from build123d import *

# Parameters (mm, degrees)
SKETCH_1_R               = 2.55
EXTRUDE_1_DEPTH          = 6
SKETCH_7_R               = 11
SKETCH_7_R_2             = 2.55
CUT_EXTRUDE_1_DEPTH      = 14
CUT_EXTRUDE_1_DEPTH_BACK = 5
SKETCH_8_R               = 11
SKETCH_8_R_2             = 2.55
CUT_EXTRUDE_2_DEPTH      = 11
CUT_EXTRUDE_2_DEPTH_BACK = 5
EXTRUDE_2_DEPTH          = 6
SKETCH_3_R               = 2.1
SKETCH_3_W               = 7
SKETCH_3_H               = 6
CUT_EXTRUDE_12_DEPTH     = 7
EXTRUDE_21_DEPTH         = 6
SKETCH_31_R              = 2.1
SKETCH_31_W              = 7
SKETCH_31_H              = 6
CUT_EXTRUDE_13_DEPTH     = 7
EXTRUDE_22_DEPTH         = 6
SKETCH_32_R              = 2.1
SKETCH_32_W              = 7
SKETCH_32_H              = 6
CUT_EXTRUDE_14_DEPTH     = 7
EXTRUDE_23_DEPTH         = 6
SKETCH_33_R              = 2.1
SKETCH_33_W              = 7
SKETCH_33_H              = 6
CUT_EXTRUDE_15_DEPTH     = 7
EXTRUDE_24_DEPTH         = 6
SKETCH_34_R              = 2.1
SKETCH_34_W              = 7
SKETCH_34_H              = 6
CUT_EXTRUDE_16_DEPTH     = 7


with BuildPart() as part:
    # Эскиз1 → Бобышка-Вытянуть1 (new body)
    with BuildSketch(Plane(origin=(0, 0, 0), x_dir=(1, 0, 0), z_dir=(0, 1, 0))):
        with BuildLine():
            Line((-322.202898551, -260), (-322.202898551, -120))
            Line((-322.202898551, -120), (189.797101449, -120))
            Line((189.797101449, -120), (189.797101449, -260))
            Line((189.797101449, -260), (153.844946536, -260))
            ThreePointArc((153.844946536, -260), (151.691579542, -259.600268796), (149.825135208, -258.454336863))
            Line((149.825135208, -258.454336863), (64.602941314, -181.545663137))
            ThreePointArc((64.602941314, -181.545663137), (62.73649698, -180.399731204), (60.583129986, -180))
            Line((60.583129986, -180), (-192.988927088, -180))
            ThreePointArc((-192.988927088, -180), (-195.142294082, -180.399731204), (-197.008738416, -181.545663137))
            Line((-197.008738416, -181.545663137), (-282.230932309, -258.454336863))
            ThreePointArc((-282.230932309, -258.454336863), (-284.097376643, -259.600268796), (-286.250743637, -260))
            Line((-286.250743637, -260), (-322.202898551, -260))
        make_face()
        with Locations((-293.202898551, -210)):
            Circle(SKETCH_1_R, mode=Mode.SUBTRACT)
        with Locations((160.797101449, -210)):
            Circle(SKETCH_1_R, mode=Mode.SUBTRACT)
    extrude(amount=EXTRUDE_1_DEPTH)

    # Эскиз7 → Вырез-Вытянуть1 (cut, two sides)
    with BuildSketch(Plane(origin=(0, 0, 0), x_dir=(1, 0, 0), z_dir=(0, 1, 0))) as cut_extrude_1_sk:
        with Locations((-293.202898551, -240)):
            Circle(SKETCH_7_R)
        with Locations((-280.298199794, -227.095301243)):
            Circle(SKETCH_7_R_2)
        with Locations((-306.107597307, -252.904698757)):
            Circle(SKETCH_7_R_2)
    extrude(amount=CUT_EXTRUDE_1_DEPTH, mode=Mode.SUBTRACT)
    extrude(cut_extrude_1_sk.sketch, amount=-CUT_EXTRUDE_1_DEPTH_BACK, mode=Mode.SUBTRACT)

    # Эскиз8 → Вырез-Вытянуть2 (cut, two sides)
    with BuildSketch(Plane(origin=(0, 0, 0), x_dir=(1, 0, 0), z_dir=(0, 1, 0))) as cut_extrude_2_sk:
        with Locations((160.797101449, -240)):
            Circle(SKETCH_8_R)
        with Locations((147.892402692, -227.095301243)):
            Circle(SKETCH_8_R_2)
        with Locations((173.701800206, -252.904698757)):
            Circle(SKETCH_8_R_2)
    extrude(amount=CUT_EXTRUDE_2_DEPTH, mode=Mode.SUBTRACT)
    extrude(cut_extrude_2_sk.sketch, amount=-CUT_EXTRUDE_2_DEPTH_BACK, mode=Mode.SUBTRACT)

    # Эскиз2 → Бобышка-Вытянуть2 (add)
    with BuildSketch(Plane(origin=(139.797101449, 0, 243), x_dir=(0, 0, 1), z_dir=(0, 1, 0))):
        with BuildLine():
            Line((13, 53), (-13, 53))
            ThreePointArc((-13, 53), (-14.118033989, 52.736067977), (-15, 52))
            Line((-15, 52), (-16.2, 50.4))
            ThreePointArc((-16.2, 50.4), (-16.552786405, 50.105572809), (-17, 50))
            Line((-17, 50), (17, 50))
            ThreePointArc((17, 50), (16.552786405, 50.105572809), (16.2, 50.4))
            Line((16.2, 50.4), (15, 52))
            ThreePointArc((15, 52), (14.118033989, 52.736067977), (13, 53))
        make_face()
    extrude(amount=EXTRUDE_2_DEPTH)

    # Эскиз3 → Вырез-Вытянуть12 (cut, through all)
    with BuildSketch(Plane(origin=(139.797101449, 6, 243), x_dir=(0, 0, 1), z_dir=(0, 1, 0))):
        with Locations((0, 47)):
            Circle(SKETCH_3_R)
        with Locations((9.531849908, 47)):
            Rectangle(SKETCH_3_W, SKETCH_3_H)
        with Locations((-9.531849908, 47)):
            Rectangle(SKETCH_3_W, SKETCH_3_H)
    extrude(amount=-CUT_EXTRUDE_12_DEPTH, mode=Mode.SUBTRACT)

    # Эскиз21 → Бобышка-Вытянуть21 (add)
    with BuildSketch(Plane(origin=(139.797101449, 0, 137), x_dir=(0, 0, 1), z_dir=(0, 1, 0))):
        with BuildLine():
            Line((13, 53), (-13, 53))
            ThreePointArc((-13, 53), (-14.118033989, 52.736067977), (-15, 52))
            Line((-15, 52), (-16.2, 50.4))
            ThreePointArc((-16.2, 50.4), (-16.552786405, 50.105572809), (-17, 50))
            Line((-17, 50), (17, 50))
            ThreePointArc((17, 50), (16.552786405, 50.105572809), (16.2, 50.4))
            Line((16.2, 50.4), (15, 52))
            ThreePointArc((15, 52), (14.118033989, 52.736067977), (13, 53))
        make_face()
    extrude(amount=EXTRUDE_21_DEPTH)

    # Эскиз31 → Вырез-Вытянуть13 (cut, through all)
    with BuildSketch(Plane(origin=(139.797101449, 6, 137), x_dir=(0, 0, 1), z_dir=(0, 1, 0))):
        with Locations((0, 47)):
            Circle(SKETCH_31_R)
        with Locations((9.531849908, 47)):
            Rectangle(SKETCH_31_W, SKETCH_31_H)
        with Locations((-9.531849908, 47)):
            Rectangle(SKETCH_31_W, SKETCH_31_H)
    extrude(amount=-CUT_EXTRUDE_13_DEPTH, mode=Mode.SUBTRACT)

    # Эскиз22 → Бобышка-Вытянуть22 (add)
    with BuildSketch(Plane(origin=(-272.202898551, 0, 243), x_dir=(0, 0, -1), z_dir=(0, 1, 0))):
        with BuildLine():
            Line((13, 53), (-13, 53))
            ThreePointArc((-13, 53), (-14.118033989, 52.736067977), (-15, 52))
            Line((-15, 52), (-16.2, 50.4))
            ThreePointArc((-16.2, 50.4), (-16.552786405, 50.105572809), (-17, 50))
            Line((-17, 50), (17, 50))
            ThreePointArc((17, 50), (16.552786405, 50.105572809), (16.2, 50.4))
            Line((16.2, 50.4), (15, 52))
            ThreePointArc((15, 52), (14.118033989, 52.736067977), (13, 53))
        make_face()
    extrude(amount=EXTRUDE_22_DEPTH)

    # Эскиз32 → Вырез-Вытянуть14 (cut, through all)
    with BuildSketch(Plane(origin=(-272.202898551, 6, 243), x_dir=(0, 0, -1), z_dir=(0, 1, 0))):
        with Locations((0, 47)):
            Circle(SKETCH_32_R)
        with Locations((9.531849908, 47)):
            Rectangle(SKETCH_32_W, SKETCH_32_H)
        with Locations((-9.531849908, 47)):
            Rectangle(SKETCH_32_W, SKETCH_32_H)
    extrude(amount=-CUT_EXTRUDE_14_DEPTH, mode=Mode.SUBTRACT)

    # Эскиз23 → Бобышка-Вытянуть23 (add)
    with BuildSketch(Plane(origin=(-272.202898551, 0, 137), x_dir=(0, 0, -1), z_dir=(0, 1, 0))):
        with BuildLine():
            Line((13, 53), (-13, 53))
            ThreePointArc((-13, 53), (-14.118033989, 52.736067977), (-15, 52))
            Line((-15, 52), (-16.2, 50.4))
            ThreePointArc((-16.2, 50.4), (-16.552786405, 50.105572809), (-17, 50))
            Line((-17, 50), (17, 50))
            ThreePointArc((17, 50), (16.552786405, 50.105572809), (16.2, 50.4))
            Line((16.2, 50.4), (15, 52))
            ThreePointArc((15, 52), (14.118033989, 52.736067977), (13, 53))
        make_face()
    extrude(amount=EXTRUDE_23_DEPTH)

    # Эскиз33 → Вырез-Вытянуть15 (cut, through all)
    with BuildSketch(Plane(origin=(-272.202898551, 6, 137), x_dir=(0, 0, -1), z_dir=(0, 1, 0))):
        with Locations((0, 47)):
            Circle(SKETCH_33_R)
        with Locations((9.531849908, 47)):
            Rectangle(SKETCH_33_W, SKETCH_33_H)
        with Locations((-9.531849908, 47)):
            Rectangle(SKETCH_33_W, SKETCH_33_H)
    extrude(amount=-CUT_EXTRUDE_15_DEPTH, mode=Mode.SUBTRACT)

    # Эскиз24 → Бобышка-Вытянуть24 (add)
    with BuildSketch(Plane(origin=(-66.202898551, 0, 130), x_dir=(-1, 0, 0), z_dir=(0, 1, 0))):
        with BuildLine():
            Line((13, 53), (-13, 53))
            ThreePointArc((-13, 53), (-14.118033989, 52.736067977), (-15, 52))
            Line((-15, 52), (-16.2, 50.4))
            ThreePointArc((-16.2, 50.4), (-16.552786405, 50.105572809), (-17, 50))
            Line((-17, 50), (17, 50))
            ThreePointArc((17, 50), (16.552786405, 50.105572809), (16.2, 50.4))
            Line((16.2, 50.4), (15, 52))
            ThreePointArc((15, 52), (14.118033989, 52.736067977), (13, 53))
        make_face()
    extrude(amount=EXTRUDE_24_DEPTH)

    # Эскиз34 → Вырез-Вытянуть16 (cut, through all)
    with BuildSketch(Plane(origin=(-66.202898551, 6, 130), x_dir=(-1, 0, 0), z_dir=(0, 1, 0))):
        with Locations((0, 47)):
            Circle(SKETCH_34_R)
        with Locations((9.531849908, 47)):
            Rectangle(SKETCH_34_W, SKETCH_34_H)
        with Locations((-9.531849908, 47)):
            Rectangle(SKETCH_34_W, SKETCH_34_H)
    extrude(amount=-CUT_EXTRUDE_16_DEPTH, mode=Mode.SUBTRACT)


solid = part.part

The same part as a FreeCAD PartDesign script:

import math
import FreeCAD as App
import Part
import Sketcher
Q = App.Units.Quantity

doc = App.newDocument("Part")
body = doc.addObject("PartDesign::Body", "Body")

sketch1 = doc.addObject("Sketcher::SketchObject", "Sketch")
body.addObject(sketch1)
sketch1.AttachmentSupport = (doc.XZ_Plane, [""])
sketch1.MapMode = "FlatFace"
sketch1.addGeometry(Part.LineSegment(App.Vector(-322.202899, 120, 0), App.Vector(-322.202899, 260, 0)), False)
sketch1.addGeometry(Part.LineSegment(App.Vector(-322.202899, 260, 0), App.Vector(-286.250744, 260, 0)), False)
sketch1.addGeometry(Part.ArcOfCircle(Part.Circle(App.Vector(-286.250744, 254, 0), App.Vector(0, 0, 1), 6), math.radians(47.935362), math.radians(90)), False)
sketch1.addGeometry(Part.LineSegment(App.Vector(-282.230932, 258.454337, 0), App.Vector(-197.008738, 181.545663, 0)), False)
sketch1.addGeometry(Part.ArcOfCircle(Part.Circle(App.Vector(-192.988927, 186, 0), App.Vector(0, 0, 1), 6), math.radians(-132.064638), math.radians(-90)), False)
sketch1.addGeometry(Part.LineSegment(App.Vector(-192.988927, 180, 0), App.Vector(60.58313, 180, 0)), False)
sketch1.addGeometry(Part.ArcOfCircle(Part.Circle(App.Vector(60.58313, 186, 0), App.Vector(0, 0, 1), 6), math.radians(-90), math.radians(-47.935362)), False)
sketch1.addGeometry(Part.LineSegment(App.Vector(64.602941, 181.545663, 0), App.Vector(149.825135, 258.454337, 0)), False)
sketch1.addGeometry(Part.ArcOfCircle(Part.Circle(App.Vector(153.844947, 254, 0), App.Vector(0, 0, 1), 6), math.radians(90), math.radians(132.064638)), False)
sketch1.addGeometry(Part.LineSegment(App.Vector(153.844947, 260, 0), App.Vector(189.797101, 260, 0)), False)
sketch1.addGeometry(Part.LineSegment(App.Vector(189.797101, 260, 0), App.Vector(189.797101, 120, 0)), False)
sketch1.addGeometry(Part.LineSegment(App.Vector(189.797101, 120, 0), App.Vector(-322.202899, 120, 0)), False)
sketch1.addGeometry(Part.Circle(App.Vector(160.797101, 210, 0), App.Vector(0, 0, 1), 2.55), False)
sketch1.addGeometry(Part.Circle(App.Vector(-293.202899, 210, 0), App.Vector(0, 0, 1), 2.55), False)
sketch1.addConstraint(Sketcher.Constraint("Coincident", 0, 2, 1, 1))
sketch1.addConstraint(Sketcher.Constraint("Tangent", 1, 2, 2, 2))
sketch1.addConstraint(Sketcher.Constraint("Tangent", 2, 1, 3, 1))
sketch1.addConstraint(Sketcher.Constraint("Tangent", 3, 2, 4, 1))
sketch1.addConstraint(Sketcher.Constraint("Tangent", 4, 2, 5, 1))
sketch1.addConstraint(Sketcher.Constraint("Tangent", 5, 2, 6, 1))
sketch1.addConstraint(Sketcher.Constraint("Tangent", 6, 2, 7, 1))
sketch1.addConstraint(Sketcher.Constraint("Tangent", 7, 2, 8, 2))
sketch1.addConstraint(Sketcher.Constraint("Tangent", 8, 1, 9, 1))
sketch1.addConstraint(Sketcher.Constraint("Coincident", 9, 2, 10, 1))
sketch1.addConstraint(Sketcher.Constraint("Coincident", 10, 2, 11, 1))
sketch1.addConstraint(Sketcher.Constraint("Coincident", 11, 2, 0, 1))
sketch1.addConstraint(Sketcher.Constraint("Vertical", 0))
sketch1.addConstraint(Sketcher.Constraint("Horizontal", 1))
sketch1.addConstraint(Sketcher.Constraint("Horizontal", 5))
sketch1.addConstraint(Sketcher.Constraint("Horizontal", 9))
sketch1.addConstraint(Sketcher.Constraint("Vertical", 10))
sketch1.addConstraint(Sketcher.Constraint("Horizontal", 11))
sketch1.addConstraint(Sketcher.Constraint("Equal", 2, 4))
sketch1.addConstraint(Sketcher.Constraint("Equal", 4, 6))
sketch1.addConstraint(Sketcher.Constraint("Equal", 6, 8))
sketch1.addConstraint(Sketcher.Constraint("Equal", 12, 13))
sketch1.addConstraint(Sketcher.Constraint("Horizontal", 2, 3, 8, 3))
sketch1.addConstraint(Sketcher.Constraint("Horizontal", 12, 3, 13, 3))
sketch1.addConstraint(Sketcher.Constraint("Horizontal", 3, 2, 6, 2))
sketch1.addConstraint(Sketcher.Constraint("Equal", 1, 9))
sketch1.addConstraint(Sketcher.Constraint("Radius", 2, Q("6 mm")))
sketch1.addConstraint(Sketcher.Constraint("Diameter", 12, Q("5.1 mm")))
sketch1.addConstraint(Sketcher.Constraint("DistanceX", 11, 2, 11, 1, Q("512 mm")))
sketch1.addConstraint(Sketcher.Constraint("DistanceY", 0, 1, 0, 2, Q("140 mm")))
sketch1.addConstraint(Sketcher.Constraint("DistanceY", -1, 1, 2, 3, Q("254 mm")))
sketch1.addConstraint(Sketcher.Constraint("DistanceY", -1, 1, 4, 3, Q("186 mm")))
sketch1.addConstraint(Sketcher.Constraint("DistanceY", -1, 1, 12, 3, Q("210 mm")))
sketch1.addConstraint(Sketcher.Constraint("DistanceX", 13, 3, 12, 3, Q("454 mm")))
sketch1.addConstraint(Sketcher.Constraint("DistanceX", 0, 2, 13, 3, Q("29 mm")))
sketch1.addConstraint(Sketcher.Constraint("DistanceX", -1, 1, 12, 3, Q("160.797101 mm")))
sketch1.addConstraint(Sketcher.Constraint("DistanceX", 1, 1, 1, 2, Q("35.952155 mm")))
sketch1.addConstraint(Sketcher.Constraint("DistanceX", 5, 1, 5, 2, Q("253.572057 mm")))
pad1 = doc.addObject("PartDesign::Pad", "Pad")
body.addObject(pad1)
pad1.Profile = sketch1
pad1.Length = 6
pad1.Reversed = True

sketch2 = doc.addObject("Sketcher::SketchObject", "Sketch001")
body.addObject(sketch2)
sketch2.AttachmentSupport = (doc.XZ_Plane, [""])
sketch2.MapMode = "FlatFace"
sketch2.addGeometry(Part.Circle(App.Vector(-293.202899, 240, 0), App.Vector(0, 0, 1), 11), False)
sketch2.addGeometry(Part.Circle(App.Vector(-280.2982, 227.095301, 0), App.Vector(0, 0, 1), 2.55), False)
sketch2.addGeometry(Part.Circle(App.Vector(-306.107597, 252.904699, 0), App.Vector(0, 0, 1), 2.55), False)
sketch2.addConstraint(Sketcher.Constraint("Equal", 1, 2))
sketch2.addConstraint(Sketcher.Constraint("Diameter", 0, Q("22 mm")))
sketch2.addConstraint(Sketcher.Constraint("Diameter", 1, Q("5.1 mm")))
sketch2.addConstraint(Sketcher.Constraint("DistanceY", -1, 1, 0, 3, Q("240 mm")))
sketch2.addConstraint(Sketcher.Constraint("DistanceX", 0, 3, -1, 1, Q("293.202899 mm")))
sketch2.addConstraint(Sketcher.Constraint("DistanceX", 1, 3, -1, 1, Q("280.2982 mm")))
sketch2.addConstraint(Sketcher.Constraint("DistanceY", -1, 1, 1, 3, Q("227.095301 mm")))
sketch2.addConstraint(Sketcher.Constraint("DistanceY", -1, 1, 2, 3, Q("252.904699 mm")))
sketch2.addConstraint(Sketcher.Constraint("DistanceX", 2, 3, 0, 3, Q("12.904699 mm")))
pocket1 = doc.addObject("PartDesign::Pocket", "Pocket")
body.addObject(pocket1)
pocket1.Profile = sketch2
pocket1.Type = "ThroughAll"
pocket1.Midplane = True

sketch3 = doc.addObject("Sketcher::SketchObject", "Sketch002")
body.addObject(sketch3)
sketch3.AttachmentSupport = (doc.XZ_Plane, [""])
sketch3.MapMode = "FlatFace"
sketch3.addGeometry(Part.Circle(App.Vector(160.797101, 240, 0), App.Vector(0, 0, 1), 11), False)
sketch3.addGeometry(Part.Circle(App.Vector(147.892403, 227.095301, 0), App.Vector(0, 0, 1), 2.55), False)
sketch3.addGeometry(Part.Circle(App.Vector(173.7018, 252.904699, 0), App.Vector(0, 0, 1), 2.55), False)
sketch3.addConstraint(Sketcher.Constraint("Equal", 1, 2))
sketch3.addConstraint(Sketcher.Constraint("Diameter", 0, Q("22 mm")))
sketch3.addConstraint(Sketcher.Constraint("Diameter", 1, Q("5.1 mm")))
sketch3.addConstraint(Sketcher.Constraint("DistanceY", -1, 1, 0, 3, Q("240 mm")))
sketch3.addConstraint(Sketcher.Constraint("DistanceX", -1, 1, 0, 3, Q("160.797101 mm")))
sketch3.addConstraint(Sketcher.Constraint("DistanceY", -1, 1, 1, 3, Q("227.095301 mm")))
sketch3.addConstraint(Sketcher.Constraint("DistanceX", -1, 1, 2, 3, Q("173.7018 mm")))
sketch3.addConstraint(Sketcher.Constraint("DistanceY", -1, 1, 2, 3, Q("252.904699 mm")))
sketch3.addConstraint(Sketcher.Constraint("DistanceX", 1, 3, 0, 3, Q("12.904699 mm")))
pocket2 = doc.addObject("PartDesign::Pocket", "Pocket001")
body.addObject(pocket2)
pocket2.Profile = sketch3
pocket2.Type = "ThroughAll"
pocket2.Midplane = True

sketch4 = doc.addObject("Sketcher::SketchObject", "Sketch003")
body.addObject(sketch4)
sketch4.AttachmentSupport = (doc.XZ_Plane, [""])
sketch4.MapMode = "FlatFace"
sketch4.addGeometry(Part.LineSegment(App.Vector(192.797101, 256, 0), App.Vector(192.797101, 230, 0)), False)
sketch4.addGeometry(Part.ArcOfCircle(Part.Circle(App.Vector(190.297101, 230, 0), App.Vector(0, 0, 1), 2.5), math.radians(-53.130102), math.radians(0)), False)
sketch4.addGeometry(Part.LineSegment(App.Vector(191.797101, 228, 0), App.Vector(190.197101, 226.8, 0)), False)
sketch4.addGeometry(Part.ArcOfCircle(Part.Circle(App.Vector(190.797101, 226, 0), App.Vector(0, 0, 1), 1), math.radians(126.869898), math.radians(180)), False)
sketch4.addGeometry(Part.LineSegment(App.Vector(189.797101, 226, 0), App.Vector(189.797101, 260, 0)), False)
sketch4.addGeometry(Part.ArcOfCircle(Part.Circle(App.Vector(190.797101, 260, 0), App.Vector(0, 0, 1), 1), math.radians(-180), math.radians(-126.869898)), False)
sketch4.addGeometry(Part.LineSegment(App.Vector(190.197101, 259.2, 0), App.Vector(191.797101, 258, 0)), False)
sketch4.addGeometry(Part.ArcOfCircle(Part.Circle(App.Vector(190.297101, 256, 0), App.Vector(0, 0, 1), 2.5), math.radians(0), math.radians(53.130102)), False)
sketch4.addConstraint(Sketcher.Constraint("Tangent", 0, 2, 1, 2))
sketch4.addConstraint(Sketcher.Constraint("Tangent", 1, 1, 2, 1))
sketch4.addConstraint(Sketcher.Constraint("Tangent", 2, 2, 3, 1))
sketch4.addConstraint(Sketcher.Constraint("Tangent", 3, 2, 4, 1))
sketch4.addConstraint(Sketcher.Constraint("Tangent", 4, 2, 5, 1))
sketch4.addConstraint(Sketcher.Constraint("Tangent", 5, 2, 6, 1))
sketch4.addConstraint(Sketcher.Constraint("Tangent", 6, 2, 7, 2))
sketch4.addConstraint(Sketcher.Constraint("Tangent", 7, 1, 0, 1))
sketch4.addConstraint(Sketcher.Constraint("Vertical", 0))
sketch4.addConstraint(Sketcher.Constraint("Vertical", 4))
sketch4.addConstraint(Sketcher.Constraint("Equal", 3, 5))
sketch4.addConstraint(Sketcher.Constraint("Equal", 1, 7))
sketch4.addConstraint(Sketcher.Constraint("Vertical", 2, 2, 5, 2))
sketch4.addConstraint(Sketcher.Constraint("Radius", 3, Q("1 mm")))
sketch4.addConstraint(Sketcher.Constraint("Radius", 1, Q("2.5 mm")))
sketch4.addConstraint(Sketcher.Constraint("DistanceY", 0, 2, 0, 1, Q("26 mm")))
sketch4.addConstraint(Sketcher.Constraint("DistanceY", 4, 1, 4, 2, Q("34 mm")))
sketch4.addConstraint(Sketcher.Constraint("Distance", 2, Q("2 mm")))
sketch4.addConstraint(Sketcher.Constraint("DistanceY", -1, 1, 1, 3, Q("230 mm")))
sketch4.addConstraint(Sketcher.Constraint("DistanceX", -1, 1, 1, 3, Q("190.297101 mm")))
pad2 = doc.addObject("PartDesign::Pad", "Pad001")
body.addObject(pad2)
pad2.Profile = sketch4
pad2.Length = 6
pad2.Reversed = True

sketch5 = doc.addObject("Sketcher::SketchObject", "Sketch004")
body.addObject(sketch5)
sketch5.AttachmentSupport = (doc.XZ_Plane, [""])
sketch5.MapMode = "FlatFace"
sketch5.AttachmentOffset = App.Placement(App.Vector(0, 0, -6), App.Rotation())
sketch5.addGeometry(Part.Circle(App.Vector(186.797101, 243, 0), App.Vector(0, 0, 1), 2.1), False)
sketch5.addGeometry(Part.LineSegment(App.Vector(189.797101, 249.03185, 0), App.Vector(183.797101, 249.03185, 0)), False)
sketch5.addGeometry(Part.LineSegment(App.Vector(183.797101, 249.03185, 0), App.Vector(183.797101, 256.03185, 0)), False)
sketch5.addGeometry(Part.LineSegment(App.Vector(183.797101, 256.03185, 0), App.Vector(189.797101, 256.03185, 0)), False)
sketch5.addGeometry(Part.LineSegment(App.Vector(189.797101, 256.03185, 0), App.Vector(189.797101, 249.03185, 0)), False)
sketch5.addGeometry(Part.LineSegment(App.Vector(189.797101, 229.96815, 0), App.Vector(183.797101, 229.96815, 0)), False)
sketch5.addGeometry(Part.LineSegment(App.Vector(183.797101, 229.96815, 0), App.Vector(183.797101, 236.96815, 0)), False)
sketch5.addGeometry(Part.LineSegment(App.Vector(183.797101, 236.96815, 0), App.Vector(189.797101, 236.96815, 0)), False)
sketch5.addGeometry(Part.LineSegment(App.Vector(189.797101, 236.96815, 0), App.Vector(189.797101, 229.96815, 0)), False)
sketch5.addConstraint(Sketcher.Constraint("Coincident", 1, 2, 2, 1))
sketch5.addConstraint(Sketcher.Constraint("Coincident", 2, 2, 3, 1))
sketch5.addConstraint(Sketcher.Constraint("Coincident", 3, 2, 4, 1))
sketch5.addConstraint(Sketcher.Constraint("Coincident", 4, 2, 1, 1))
sketch5.addConstraint(Sketcher.Constraint("Coincident", 5, 2, 6, 1))
sketch5.addConstraint(Sketcher.Constraint("Coincident", 6, 2, 7, 1))
sketch5.addConstraint(Sketcher.Constraint("Coincident", 7, 2, 8, 1))
sketch5.addConstraint(Sketcher.Constraint("Coincident", 8, 2, 5, 1))
sketch5.addConstraint(Sketcher.Constraint("Horizontal", 1))
sketch5.addConstraint(Sketcher.Constraint("Vertical", 2))
sketch5.addConstraint(Sketcher.Constraint("Horizontal", 3))
sketch5.addConstraint(Sketcher.Constraint("Vertical", 4))
sketch5.addConstraint(Sketcher.Constraint("Horizontal", 5))
sketch5.addConstraint(Sketcher.Constraint("Vertical", 6))
sketch5.addConstraint(Sketcher.Constraint("Horizontal", 7))
sketch5.addConstraint(Sketcher.Constraint("Vertical", 8))
sketch5.addConstraint(Sketcher.Constraint("Vertical", 2, 2, 5, 2))
sketch5.addConstraint(Sketcher.Constraint("Vertical", 4, 2, 7, 2))
sketch5.addConstraint(Sketcher.Constraint("Equal", 4, 6))
sketch5.addConstraint(Sketcher.Constraint("Diameter", 0, Q("4.2 mm")))
sketch5.addConstraint(Sketcher.Constraint("DistanceX", 1, 2, 1, 1, Q("6 mm")))
sketch5.addConstraint(Sketcher.Constraint("DistanceY", 2, 1, 2, 2, Q("7 mm")))
sketch5.addConstraint(Sketcher.Constraint("DistanceY", -1, 1, 0, 3, Q("243 mm")))
sketch5.addConstraint(Sketcher.Constraint("DistanceX", 1, 2, 0, 3, Q("3 mm")))
sketch5.addConstraint(Sketcher.Constraint("DistanceX", -1, 1, 0, 3, Q("186.797101 mm")))
sketch5.addConstraint(Sketcher.Constraint("DistanceY", 5, 2, 1, 2, Q("19.0637 mm")))
sketch5.addConstraint(Sketcher.Constraint("DistanceY", -1, 1, 1, 2, Q("249.03185 mm")))
pocket3 = doc.addObject("PartDesign::Pocket", "Pocket002")
body.addObject(pocket3)
pocket3.Profile = sketch5
pocket3.Type = "ThroughAll"
pocket3.Reversed = True

sketch6 = doc.addObject("Sketcher::SketchObject", "Sketch005")
body.addObject(sketch6)
sketch6.AttachmentSupport = (doc.XZ_Plane, [""])
sketch6.MapMode = "FlatFace"
sketch6.addGeometry(Part.LineSegment(App.Vector(192.797101, 150, 0), App.Vector(192.797101, 124, 0)), False)
sketch6.addGeometry(Part.ArcOfCircle(Part.Circle(App.Vector(190.297101, 124, 0), App.Vector(0, 0, 1), 2.5), math.radians(-53.130102), math.radians(0)), False)
sketch6.addGeometry(Part.LineSegment(App.Vector(191.797101, 122, 0), App.Vector(190.197101, 120.8, 0)), False)
sketch6.addGeometry(Part.ArcOfCircle(Part.Circle(App.Vector(190.797101, 120, 0), App.Vector(0, 0, 1), 1), math.radians(126.869898), math.radians(180)), False)
sketch6.addGeometry(Part.LineSegment(App.Vector(189.797101, 120, 0), App.Vector(189.797101, 154, 0)), False)
sketch6.addGeometry(Part.ArcOfCircle(Part.Circle(App.Vector(190.797101, 154, 0), App.Vector(0, 0, 1), 1), math.radians(-180), math.radians(-126.869898)), False)
sketch6.addGeometry(Part.LineSegment(App.Vector(190.197101, 153.2, 0), App.Vector(191.797101, 152, 0)), False)
sketch6.addGeometry(Part.ArcOfCircle(Part.Circle(App.Vector(190.297101, 150, 0), App.Vector(0, 0, 1), 2.5), math.radians(0), math.radians(53.130102)), False)
sketch6.addConstraint(Sketcher.Constraint("Tangent", 0, 2, 1, 2))
sketch6.addConstraint(Sketcher.Constraint("Tangent", 1, 1, 2, 1))
sketch6.addConstraint(Sketcher.Constraint("Tangent", 2, 2, 3, 1))
sketch6.addConstraint(Sketcher.Constraint("Tangent", 3, 2, 4, 1))
sketch6.addConstraint(Sketcher.Constraint("Tangent", 4, 2, 5, 1))
sketch6.addConstraint(Sketcher.Constraint("Tangent", 5, 2, 6, 1))
sketch6.addConstraint(Sketcher.Constraint("Tangent", 6, 2, 7, 2))
sketch6.addConstraint(Sketcher.Constraint("Tangent", 7, 1, 0, 1))
sketch6.addConstraint(Sketcher.Constraint("Vertical", 0))
sketch6.addConstraint(Sketcher.Constraint("Vertical", 4))
sketch6.addConstraint(Sketcher.Constraint("Equal", 3, 5))
sketch6.addConstraint(Sketcher.Constraint("Equal", 1, 7))
sketch6.addConstraint(Sketcher.Constraint("Vertical", 2, 2, 5, 2))
sketch6.addConstraint(Sketcher.Constraint("Radius", 3, Q("1 mm")))
sketch6.addConstraint(Sketcher.Constraint("Radius", 1, Q("2.5 mm")))
sketch6.addConstraint(Sketcher.Constraint("DistanceY", 0, 2, 0, 1, Q("26 mm")))
sketch6.addConstraint(Sketcher.Constraint("DistanceY", 4, 1, 4, 2, Q("34 mm")))
sketch6.addConstraint(Sketcher.Constraint("Distance", 2, Q("2 mm")))
sketch6.addConstraint(Sketcher.Constraint("DistanceY", -1, 1, 1, 3, Q("124 mm")))
sketch6.addConstraint(Sketcher.Constraint("DistanceX", -1, 1, 1, 3, Q("190.297101 mm")))
pad3 = doc.addObject("PartDesign::Pad", "Pad002")
body.addObject(pad3)
pad3.Profile = sketch6
pad3.Length = 6
pad3.Reversed = True

sketch7 = doc.addObject("Sketcher::SketchObject", "Sketch006")
body.addObject(sketch7)
sketch7.AttachmentSupport = (doc.XZ_Plane, [""])
sketch7.MapMode = "FlatFace"
sketch7.AttachmentOffset = App.Placement(App.Vector(0, 0, -6), App.Rotation())
sketch7.addGeometry(Part.Circle(App.Vector(186.797101, 137, 0), App.Vector(0, 0, 1), 2.1), False)
sketch7.addGeometry(Part.LineSegment(App.Vector(189.797101, 143.03185, 0), App.Vector(183.797101, 143.03185, 0)), False)
sketch7.addGeometry(Part.LineSegment(App.Vector(183.797101, 143.03185, 0), App.Vector(183.797101, 150.03185, 0)), False)
sketch7.addGeometry(Part.LineSegment(App.Vector(183.797101, 150.03185, 0), App.Vector(189.797101, 150.03185, 0)), False)
sketch7.addGeometry(Part.LineSegment(App.Vector(189.797101, 150.03185, 0), App.Vector(189.797101, 143.03185, 0)), False)
sketch7.addGeometry(Part.LineSegment(App.Vector(189.797101, 123.96815, 0), App.Vector(183.797101, 123.96815, 0)), False)
sketch7.addGeometry(Part.LineSegment(App.Vector(183.797101, 123.96815, 0), App.Vector(183.797101, 130.96815, 0)), False)
sketch7.addGeometry(Part.LineSegment(App.Vector(183.797101, 130.96815, 0), App.Vector(189.797101, 130.96815, 0)), False)
sketch7.addGeometry(Part.LineSegment(App.Vector(189.797101, 130.96815, 0), App.Vector(189.797101, 123.96815, 0)), False)
sketch7.addConstraint(Sketcher.Constraint("Coincident", 1, 2, 2, 1))
sketch7.addConstraint(Sketcher.Constraint("Coincident", 2, 2, 3, 1))
sketch7.addConstraint(Sketcher.Constraint("Coincident", 3, 2, 4, 1))
sketch7.addConstraint(Sketcher.Constraint("Coincident", 4, 2, 1, 1))
sketch7.addConstraint(Sketcher.Constraint("Coincident", 5, 2, 6, 1))
sketch7.addConstraint(Sketcher.Constraint("Coincident", 6, 2, 7, 1))
sketch7.addConstraint(Sketcher.Constraint("Coincident", 7, 2, 8, 1))
sketch7.addConstraint(Sketcher.Constraint("Coincident", 8, 2, 5, 1))
sketch7.addConstraint(Sketcher.Constraint("Horizontal", 1))
sketch7.addConstraint(Sketcher.Constraint("Vertical", 2))
sketch7.addConstraint(Sketcher.Constraint("Horizontal", 3))
sketch7.addConstraint(Sketcher.Constraint("Vertical", 4))
sketch7.addConstraint(Sketcher.Constraint("Horizontal", 5))
sketch7.addConstraint(Sketcher.Constraint("Vertical", 6))
sketch7.addConstraint(Sketcher.Constraint("Horizontal", 7))
sketch7.addConstraint(Sketcher.Constraint("Vertical", 8))
sketch7.addConstraint(Sketcher.Constraint("Vertical", 2, 2, 5, 2))
sketch7.addConstraint(Sketcher.Constraint("Vertical", 4, 2, 7, 2))
sketch7.addConstraint(Sketcher.Constraint("Equal", 4, 6))
sketch7.addConstraint(Sketcher.Constraint("Diameter", 0, Q("4.2 mm")))
sketch7.addConstraint(Sketcher.Constraint("DistanceX", 1, 2, 1, 1, Q("6 mm")))
sketch7.addConstraint(Sketcher.Constraint("DistanceY", 2, 1, 2, 2, Q("7 mm")))
sketch7.addConstraint(Sketcher.Constraint("DistanceY", -1, 1, 0, 3, Q("137 mm")))
sketch7.addConstraint(Sketcher.Constraint("DistanceX", 1, 2, 0, 3, Q("3 mm")))
sketch7.addConstraint(Sketcher.Constraint("DistanceX", -1, 1, 0, 3, Q("186.797101 mm")))
sketch7.addConstraint(Sketcher.Constraint("DistanceY", 5, 2, 1, 2, Q("19.0637 mm")))
sketch7.addConstraint(Sketcher.Constraint("DistanceY", -1, 1, 1, 2, Q("143.03185 mm")))
pocket4 = doc.addObject("PartDesign::Pocket", "Pocket003")
body.addObject(pocket4)
pocket4.Profile = sketch7
pocket4.Type = "ThroughAll"
pocket4.Reversed = True

sketch8 = doc.addObject("Sketcher::SketchObject", "Sketch007")
body.addObject(sketch8)
sketch8.AttachmentSupport = (doc.XZ_Plane, [""])
sketch8.MapMode = "FlatFace"
sketch8.addGeometry(Part.LineSegment(App.Vector(-325.202899, 230, 0), App.Vector(-325.202899, 256, 0)), False)
sketch8.addGeometry(Part.ArcOfCircle(Part.Circle(App.Vector(-322.702899, 256, 0), App.Vector(0, 0, 1), 2.5), math.radians(126.869898), math.radians(180)), False)
sketch8.addGeometry(Part.LineSegment(App.Vector(-324.202899, 258, 0), App.Vector(-322.602899, 259.2, 0)), False)
sketch8.addGeometry(Part.ArcOfCircle(Part.Circle(App.Vector(-323.202899, 260, 0), App.Vector(0, 0, 1), 1), math.radians(-53.130102), math.radians(0)), False)
sketch8.addGeometry(Part.LineSegment(App.Vector(-322.202899, 260, 0), App.Vector(-322.202899, 226, 0)), False)
sketch8.addGeometry(Part.ArcOfCircle(Part.Circle(App.Vector(-323.202899, 226, 0), App.Vector(0, 0, 1), 1), math.radians(0), math.radians(53.130102)), False)
sketch8.addGeometry(Part.LineSegment(App.Vector(-322.602899, 226.8, 0), App.Vector(-324.202899, 228, 0)), False)
sketch8.addGeometry(Part.ArcOfCircle(Part.Circle(App.Vector(-322.702899, 230, 0), App.Vector(0, 0, 1), 2.5), math.radians(-180), math.radians(-126.869898)), False)
sketch8.addConstraint(Sketcher.Constraint("Tangent", 0, 2, 1, 2))
sketch8.addConstraint(Sketcher.Constraint("Tangent", 1, 1, 2, 1))
sketch8.addConstraint(Sketcher.Constraint("Tangent", 2, 2, 3, 1))
sketch8.addConstraint(Sketcher.Constraint("Tangent", 3, 2, 4, 1))
sketch8.addConstraint(Sketcher.Constraint("Tangent", 4, 2, 5, 1))
sketch8.addConstraint(Sketcher.Constraint("Tangent", 5, 2, 6, 1))
sketch8.addConstraint(Sketcher.Constraint("Tangent", 6, 2, 7, 2))
sketch8.addConstraint(Sketcher.Constraint("Tangent", 7, 1, 0, 1))
sketch8.addConstraint(Sketcher.Constraint("Vertical", 0))
sketch8.addConstraint(Sketcher.Constraint("Vertical", 4))
sketch8.addConstraint(Sketcher.Constraint("Equal", 3, 5))
sketch8.addConstraint(Sketcher.Constraint("Equal", 1, 7))
sketch8.addConstraint(Sketcher.Constraint("Vertical", 2, 2, 5, 2))
sketch8.addConstraint(Sketcher.Constraint("Radius", 3, Q("1 mm")))
sketch8.addConstraint(Sketcher.Constraint("Radius", 1, Q("2.5 mm")))
sketch8.addConstraint(Sketcher.Constraint("DistanceY", 0, 1, 0, 2, Q("26 mm")))
sketch8.addConstraint(Sketcher.Constraint("DistanceY", 4, 2, 4, 1, Q("34 mm")))
sketch8.addConstraint(Sketcher.Constraint("Distance", 2, Q("2 mm")))
sketch8.addConstraint(Sketcher.Constraint("DistanceY", -1, 1, 1, 3, Q("256 mm")))
sketch8.addConstraint(Sketcher.Constraint("DistanceX", 1, 3, -1, 1, Q("322.702899 mm")))
pad4 = doc.addObject("PartDesign::Pad", "Pad003")
body.addObject(pad4)
pad4.Profile = sketch8
pad4.Length = 6
pad4.Reversed = True

sketch9 = doc.addObject("Sketcher::SketchObject", "Sketch008")
body.addObject(sketch9)
sketch9.AttachmentSupport = (doc.XZ_Plane, [""])
sketch9.MapMode = "FlatFace"
sketch9.AttachmentOffset = App.Placement(App.Vector(0, 0, -6), App.Rotation())
sketch9.addGeometry(Part.Circle(App.Vector(-319.202899, 243, 0), App.Vector(0, 0, 1), 2.1), False)
sketch9.addGeometry(Part.LineSegment(App.Vector(-322.202899, 236.96815, 0), App.Vector(-316.202899, 236.96815, 0)), False)
sketch9.addGeometry(Part.LineSegment(App.Vector(-316.202899, 236.96815, 0), App.Vector(-316.202899, 229.96815, 0)), False)
sketch9.addGeometry(Part.LineSegment(App.Vector(-316.202899, 229.96815, 0), App.Vector(-322.202899, 229.96815, 0)), False)
sketch9.addGeometry(Part.LineSegment(App.Vector(-322.202899, 229.96815, 0), App.Vector(-322.202899, 236.96815, 0)), False)
sketch9.addGeometry(Part.LineSegment(App.Vector(-322.202899, 256.03185, 0), App.Vector(-316.202899, 256.03185, 0)), False)
sketch9.addGeometry(Part.LineSegment(App.Vector(-316.202899, 256.03185, 0), App.Vector(-316.202899, 249.03185, 0)), False)
sketch9.addGeometry(Part.LineSegment(App.Vector(-316.202899, 249.03185, 0), App.Vector(-322.202899, 249.03185, 0)), False)
sketch9.addGeometry(Part.LineSegment(App.Vector(-322.202899, 249.03185, 0), App.Vector(-322.202899, 256.03185, 0)), False)
sketch9.addConstraint(Sketcher.Constraint("Coincident", 1, 2, 2, 1))
sketch9.addConstraint(Sketcher.Constraint("Coincident", 2, 2, 3, 1))
sketch9.addConstraint(Sketcher.Constraint("Coincident", 3, 2, 4, 1))
sketch9.addConstraint(Sketcher.Constraint("Coincident", 4, 2, 1, 1))
sketch9.addConstraint(Sketcher.Constraint("Coincident", 5, 2, 6, 1))
sketch9.addConstraint(Sketcher.Constraint("Coincident", 6, 2, 7, 1))
sketch9.addConstraint(Sketcher.Constraint("Coincident", 7, 2, 8, 1))
sketch9.addConstraint(Sketcher.Constraint("Coincident", 8, 2, 5, 1))
sketch9.addConstraint(Sketcher.Constraint("Horizontal", 1))
sketch9.addConstraint(Sketcher.Constraint("Vertical", 2))
sketch9.addConstraint(Sketcher.Constraint("Horizontal", 3))
sketch9.addConstraint(Sketcher.Constraint("Vertical", 4))
sketch9.addConstraint(Sketcher.Constraint("Horizontal", 5))
sketch9.addConstraint(Sketcher.Constraint("Vertical", 6))
sketch9.addConstraint(Sketcher.Constraint("Horizontal", 7))
sketch9.addConstraint(Sketcher.Constraint("Vertical", 8))
sketch9.addConstraint(Sketcher.Constraint("Vertical", 2, 2, 5, 2))
sketch9.addConstraint(Sketcher.Constraint("Vertical", 4, 2, 7, 2))
sketch9.addConstraint(Sketcher.Constraint("Equal", 4, 6))
sketch9.addConstraint(Sketcher.Constraint("Diameter", 0, Q("4.2 mm")))
sketch9.addConstraint(Sketcher.Constraint("DistanceX", 1, 1, 1, 2, Q("6 mm")))
sketch9.addConstraint(Sketcher.Constraint("DistanceY", 2, 2, 2, 1, Q("7 mm")))
sketch9.addConstraint(Sketcher.Constraint("DistanceY", -1, 1, 0, 3, Q("243 mm")))
sketch9.addConstraint(Sketcher.Constraint("DistanceX", 0, 3, 1, 2, Q("3 mm")))
sketch9.addConstraint(Sketcher.Constraint("DistanceX", 0, 3, -1, 1, Q("319.202899 mm")))
sketch9.addConstraint(Sketcher.Constraint("DistanceY", 1, 2, 5, 2, Q("19.0637 mm")))
sketch9.addConstraint(Sketcher.Constraint("DistanceY", -1, 1, 1, 2, Q("236.96815 mm")))
pocket5 = doc.addObject("PartDesign::Pocket", "Pocket004")
body.addObject(pocket5)
pocket5.Profile = sketch9
pocket5.Type = "ThroughAll"
pocket5.Reversed = True

sketch10 = doc.addObject("Sketcher::SketchObject", "Sketch009")
body.addObject(sketch10)
sketch10.AttachmentSupport = (doc.XZ_Plane, [""])
sketch10.MapMode = "FlatFace"
sketch10.addGeometry(Part.LineSegment(App.Vector(-325.202899, 124, 0), App.Vector(-325.202899, 150, 0)), False)
sketch10.addGeometry(Part.ArcOfCircle(Part.Circle(App.Vector(-322.702899, 150, 0), App.Vector(0, 0, 1), 2.5), math.radians(126.869898), math.radians(180)), False)
sketch10.addGeometry(Part.LineSegment(App.Vector(-324.202899, 152, 0), App.Vector(-322.602899, 153.2, 0)), False)
sketch10.addGeometry(Part.ArcOfCircle(Part.Circle(App.Vector(-323.202899, 154, 0), App.Vector(0, 0, 1), 1), math.radians(-53.130102), math.radians(0)), False)
sketch10.addGeometry(Part.LineSegment(App.Vector(-322.202899, 154, 0), App.Vector(-322.202899, 120, 0)), False)
sketch10.addGeometry(Part.ArcOfCircle(Part.Circle(App.Vector(-323.202899, 120, 0), App.Vector(0, 0, 1), 1), math.radians(0), math.radians(53.130102)), False)
sketch10.addGeometry(Part.LineSegment(App.Vector(-322.602899, 120.8, 0), App.Vector(-324.202899, 122, 0)), False)
sketch10.addGeometry(Part.ArcOfCircle(Part.Circle(App.Vector(-322.702899, 124, 0), App.Vector(0, 0, 1), 2.5), math.radians(-180), math.radians(-126.869898)), False)
sketch10.addConstraint(Sketcher.Constraint("Tangent", 0, 2, 1, 2))
sketch10.addConstraint(Sketcher.Constraint("Tangent", 1, 1, 2, 1))
sketch10.addConstraint(Sketcher.Constraint("Tangent", 2, 2, 3, 1))
sketch10.addConstraint(Sketcher.Constraint("Tangent", 3, 2, 4, 1))
sketch10.addConstraint(Sketcher.Constraint("Tangent", 4, 2, 5, 1))
sketch10.addConstraint(Sketcher.Constraint("Tangent", 5, 2, 6, 1))
sketch10.addConstraint(Sketcher.Constraint("Tangent", 6, 2, 7, 2))
sketch10.addConstraint(Sketcher.Constraint("Tangent", 7, 1, 0, 1))
sketch10.addConstraint(Sketcher.Constraint("Vertical", 0))
sketch10.addConstraint(Sketcher.Constraint("Vertical", 4))
sketch10.addConstraint(Sketcher.Constraint("Equal", 3, 5))
sketch10.addConstraint(Sketcher.Constraint("Equal", 1, 7))
sketch10.addConstraint(Sketcher.Constraint("Vertical", 2, 2, 5, 2))
sketch10.addConstraint(Sketcher.Constraint("Radius", 3, Q("1 mm")))
sketch10.addConstraint(Sketcher.Constraint("Radius", 1, Q("2.5 mm")))
sketch10.addConstraint(Sketcher.Constraint("DistanceY", 0, 1, 0, 2, Q("26 mm")))
sketch10.addConstraint(Sketcher.Constraint("DistanceY", 4, 2, 4, 1, Q("34 mm")))
sketch10.addConstraint(Sketcher.Constraint("Distance", 2, Q("2 mm")))
sketch10.addConstraint(Sketcher.Constraint("DistanceY", -1, 1, 1, 3, Q("150 mm")))
sketch10.addConstraint(Sketcher.Constraint("DistanceX", 1, 3, -1, 1, Q("322.702899 mm")))
pad5 = doc.addObject("PartDesign::Pad", "Pad004")
body.addObject(pad5)
pad5.Profile = sketch10
pad5.Length = 6
pad5.Reversed = True

sketch11 = doc.addObject("Sketcher::SketchObject", "Sketch010")
body.addObject(sketch11)
sketch11.AttachmentSupport = (doc.XZ_Plane, [""])
sketch11.MapMode = "FlatFace"
sketch11.AttachmentOffset = App.Placement(App.Vector(0, 0, -6), App.Rotation())
sketch11.addGeometry(Part.Circle(App.Vector(-319.202899, 137, 0), App.Vector(0, 0, 1), 2.1), False)
sketch11.addGeometry(Part.LineSegment(App.Vector(-322.202899, 130.96815, 0), App.Vector(-316.202899, 130.96815, 0)), False)
sketch11.addGeometry(Part.LineSegment(App.Vector(-316.202899, 130.96815, 0), App.Vector(-316.202899, 123.96815, 0)), False)
sketch11.addGeometry(Part.LineSegment(App.Vector(-316.202899, 123.96815, 0), App.Vector(-322.202899, 123.96815, 0)), False)
sketch11.addGeometry(Part.LineSegment(App.Vector(-322.202899, 123.96815, 0), App.Vector(-322.202899, 130.96815, 0)), False)
sketch11.addGeometry(Part.LineSegment(App.Vector(-322.202899, 150.03185, 0), App.Vector(-316.202899, 150.03185, 0)), False)
sketch11.addGeometry(Part.LineSegment(App.Vector(-316.202899, 150.03185, 0), App.Vector(-316.202899, 143.03185, 0)), False)
sketch11.addGeometry(Part.LineSegment(App.Vector(-316.202899, 143.03185, 0), App.Vector(-322.202899, 143.03185, 0)), False)
sketch11.addGeometry(Part.LineSegment(App.Vector(-322.202899, 143.03185, 0), App.Vector(-322.202899, 150.03185, 0)), False)
sketch11.addConstraint(Sketcher.Constraint("Coincident", 1, 2, 2, 1))
sketch11.addConstraint(Sketcher.Constraint("Coincident", 2, 2, 3, 1))
sketch11.addConstraint(Sketcher.Constraint("Coincident", 3, 2, 4, 1))
sketch11.addConstraint(Sketcher.Constraint("Coincident", 4, 2, 1, 1))
sketch11.addConstraint(Sketcher.Constraint("Coincident", 5, 2, 6, 1))
sketch11.addConstraint(Sketcher.Constraint("Coincident", 6, 2, 7, 1))
sketch11.addConstraint(Sketcher.Constraint("Coincident", 7, 2, 8, 1))
sketch11.addConstraint(Sketcher.Constraint("Coincident", 8, 2, 5, 1))
sketch11.addConstraint(Sketcher.Constraint("Horizontal", 1))
sketch11.addConstraint(Sketcher.Constraint("Vertical", 2))
sketch11.addConstraint(Sketcher.Constraint("Horizontal", 3))
sketch11.addConstraint(Sketcher.Constraint("Vertical", 4))
sketch11.addConstraint(Sketcher.Constraint("Horizontal", 5))
sketch11.addConstraint(Sketcher.Constraint("Vertical", 6))
sketch11.addConstraint(Sketcher.Constraint("Horizontal", 7))
sketch11.addConstraint(Sketcher.Constraint("Vertical", 8))
sketch11.addConstraint(Sketcher.Constraint("Vertical", 2, 2, 5, 2))
sketch11.addConstraint(Sketcher.Constraint("Vertical", 4, 2, 7, 2))
sketch11.addConstraint(Sketcher.Constraint("Equal", 4, 6))
sketch11.addConstraint(Sketcher.Constraint("Diameter", 0, Q("4.2 mm")))
sketch11.addConstraint(Sketcher.Constraint("DistanceX", 1, 1, 1, 2, Q("6 mm")))
sketch11.addConstraint(Sketcher.Constraint("DistanceY", 2, 2, 2, 1, Q("7 mm")))
sketch11.addConstraint(Sketcher.Constraint("DistanceY", -1, 1, 0, 3, Q("137 mm")))
sketch11.addConstraint(Sketcher.Constraint("DistanceX", 0, 3, 1, 2, Q("3 mm")))
sketch11.addConstraint(Sketcher.Constraint("DistanceX", 0, 3, -1, 1, Q("319.202899 mm")))
sketch11.addConstraint(Sketcher.Constraint("DistanceY", 1, 2, 5, 2, Q("19.0637 mm")))
sketch11.addConstraint(Sketcher.Constraint("DistanceY", -1, 1, 1, 2, Q("130.96815 mm")))
pocket6 = doc.addObject("PartDesign::Pocket", "Pocket005")
body.addObject(pocket6)
pocket6.Profile = sketch11
pocket6.Type = "ThroughAll"
pocket6.Reversed = True

sketch12 = doc.addObject("Sketcher::SketchObject", "Sketch011")
body.addObject(sketch12)
sketch12.AttachmentSupport = (doc.XZ_Plane, [""])
sketch12.MapMode = "FlatFace"
sketch12.addGeometry(Part.LineSegment(App.Vector(-79.202899, 183, 0), App.Vector(-53.202899, 183, 0)), False)
sketch12.addGeometry(Part.ArcOfCircle(Part.Circle(App.Vector(-53.202899, 180.5, 0), App.Vector(0, 0, 1), 2.5), math.radians(36.869898), math.radians(90)), False)
sketch12.addGeometry(Part.LineSegment(App.Vector(-51.202899, 182, 0), App.Vector(-50.002899, 180.4, 0)), False)
sketch12.addGeometry(Part.ArcOfCircle(Part.Circle(App.Vector(-49.202899, 181, 0), App.Vector(0, 0, 1), 1), math.radians(-143.130102), math.radians(-90)), False)
sketch12.addGeometry(Part.LineSegment(App.Vector(-49.202899, 180, 0), App.Vector(-83.202899, 180, 0)), False)
sketch12.addGeometry(Part.ArcOfCircle(Part.Circle(App.Vector(-83.202899, 181, 0), App.Vector(0, 0, 1), 1), math.radians(-90), math.radians(-36.869898)), False)
sketch12.addGeometry(Part.LineSegment(App.Vector(-82.402899, 180.4, 0), App.Vector(-81.202899, 182, 0)), False)
sketch12.addGeometry(Part.ArcOfCircle(Part.Circle(App.Vector(-79.202899, 180.5, 0), App.Vector(0, 0, 1), 2.5), math.radians(90), math.radians(143.130102)), False)
sketch12.addConstraint(Sketcher.Constraint("Tangent", 0, 2, 1, 2))
sketch12.addConstraint(Sketcher.Constraint("Tangent", 1, 1, 2, 1))
sketch12.addConstraint(Sketcher.Constraint("Tangent", 2, 2, 3, 1))
sketch12.addConstraint(Sketcher.Constraint("Tangent", 3, 2, 4, 1))
sketch12.addConstraint(Sketcher.Constraint("Tangent", 4, 2, 5, 1))
sketch12.addConstraint(Sketcher.Constraint("Tangent", 5, 2, 6, 1))
sketch12.addConstraint(Sketcher.Constraint("Tangent", 6, 2, 7, 2))
sketch12.addConstraint(Sketcher.Constraint("Tangent", 7, 1, 0, 1))
sketch12.addConstraint(Sketcher.Constraint("Horizontal", 0))
sketch12.addConstraint(Sketcher.Constraint("Horizontal", 4))
sketch12.addConstraint(Sketcher.Constraint("Equal", 3, 5))
sketch12.addConstraint(Sketcher.Constraint("Equal", 1, 7))
sketch12.addConstraint(Sketcher.Constraint("Horizontal", 2, 2, 5, 2))
sketch12.addConstraint(Sketcher.Constraint("Radius", 3, Q("1 mm")))
sketch12.addConstraint(Sketcher.Constraint("Radius", 1, Q("2.5 mm")))
sketch12.addConstraint(Sketcher.Constraint("DistanceX", 0, 1, 0, 2, Q("26 mm")))
sketch12.addConstraint(Sketcher.Constraint("DistanceX", 4, 2, 4, 1, Q("34 mm")))
sketch12.addConstraint(Sketcher.Constraint("Distance", 2, Q("2 mm")))
sketch12.addConstraint(Sketcher.Constraint("DistanceY", -1, 1, 3, 3, Q("181 mm")))
sketch12.addConstraint(Sketcher.Constraint("DistanceX", 1, 3, -1, 1, Q("53.202899 mm")))
pad6 = doc.addObject("PartDesign::Pad", "Pad005")
body.addObject(pad6)
pad6.Profile = sketch12
pad6.Length = 6
pad6.Reversed = True

sketch13 = doc.addObject("Sketcher::SketchObject", "Sketch012")
body.addObject(sketch13)
sketch13.AttachmentSupport = (doc.XZ_Plane, [""])
sketch13.MapMode = "FlatFace"
sketch13.AttachmentOffset = App.Placement(App.Vector(0, 0, -6), App.Rotation())
sketch13.addGeometry(Part.Circle(App.Vector(-66.202899, 177, 0), App.Vector(0, 0, 1), 2.1), False)
sketch13.addGeometry(Part.LineSegment(App.Vector(-72.234748, 180, 0), App.Vector(-72.234748, 174, 0)), False)
sketch13.addGeometry(Part.LineSegment(App.Vector(-72.234748, 174, 0), App.Vector(-79.234748, 174, 0)), False)
sketch13.addGeometry(Part.LineSegment(App.Vector(-79.234748, 174, 0), App.Vector(-79.234748, 180, 0)), False)
sketch13.addGeometry(Part.LineSegment(App.Vector(-79.234748, 180, 0), App.Vector(-72.234748, 180, 0)), False)
sketch13.addGeometry(Part.LineSegment(App.Vector(-53.171049, 180, 0), App.Vector(-53.171049, 174, 0)), False)
sketch13.addGeometry(Part.LineSegment(App.Vector(-53.171049, 174, 0), App.Vector(-60.171049, 174, 0)), False)
sketch13.addGeometry(Part.LineSegment(App.Vector(-60.171049, 174, 0), App.Vector(-60.171049, 180, 0)), False)
sketch13.addGeometry(Part.LineSegment(App.Vector(-60.171049, 180, 0), App.Vector(-53.171049, 180, 0)), False)
sketch13.addConstraint(Sketcher.Constraint("Coincident", 1, 2, 2, 1))
sketch13.addConstraint(Sketcher.Constraint("Coincident", 2, 2, 3, 1))
sketch13.addConstraint(Sketcher.Constraint("Coincident", 3, 2, 4, 1))
sketch13.addConstraint(Sketcher.Constraint("Coincident", 4, 2, 1, 1))
sketch13.addConstraint(Sketcher.Constraint("Coincident", 5, 2, 6, 1))
sketch13.addConstraint(Sketcher.Constraint("Coincident", 6, 2, 7, 1))
sketch13.addConstraint(Sketcher.Constraint("Coincident", 7, 2, 8, 1))
sketch13.addConstraint(Sketcher.Constraint("Coincident", 8, 2, 5, 1))
sketch13.addConstraint(Sketcher.Constraint("Vertical", 1))
sketch13.addConstraint(Sketcher.Constraint("Horizontal", 2))
sketch13.addConstraint(Sketcher.Constraint("Vertical", 3))
sketch13.addConstraint(Sketcher.Constraint("Horizontal", 4))
sketch13.addConstraint(Sketcher.Constraint("Vertical", 5))
sketch13.addConstraint(Sketcher.Constraint("Horizontal", 6))
sketch13.addConstraint(Sketcher.Constraint("Vertical", 7))
sketch13.addConstraint(Sketcher.Constraint("Horizontal", 8))
sketch13.addConstraint(Sketcher.Constraint("Horizontal", 2, 2, 5, 2))
sketch13.addConstraint(Sketcher.Constraint("Horizontal", 4, 2, 7, 2))
sketch13.addConstraint(Sketcher.Constraint("Equal", 4, 6))
sketch13.addConstraint(Sketcher.Constraint("Diameter", 0, Q("4.2 mm")))
sketch13.addConstraint(Sketcher.Constraint("DistanceX", 2, 2, 2, 1, Q("7 mm")))
sketch13.addConstraint(Sketcher.Constraint("DistanceY", 1, 2, 1, 1, Q("6 mm")))
sketch13.addConstraint(Sketcher.Constraint("DistanceY", -1, 1, 0, 3, Q("177 mm")))
sketch13.addConstraint(Sketcher.Constraint("DistanceY", -1, 1, 1, 2, Q("174 mm")))
sketch13.addConstraint(Sketcher.Constraint("DistanceX", 0, 3, -1, 1, Q("66.202899 mm")))
sketch13.addConstraint(Sketcher.Constraint("DistanceX", 1, 2, 5, 2, Q("19.0637 mm")))
sketch13.addConstraint(Sketcher.Constraint("DistanceX", 1, 2, -1, 1, Q("72.234748 mm")))
pocket7 = doc.addObject("PartDesign::Pocket", "Pocket006")
body.addObject(pocket7)
pocket7.Profile = sketch13
pocket7.Type = "ThroughAll"
pocket7.Reversed = True

doc.recompute()
